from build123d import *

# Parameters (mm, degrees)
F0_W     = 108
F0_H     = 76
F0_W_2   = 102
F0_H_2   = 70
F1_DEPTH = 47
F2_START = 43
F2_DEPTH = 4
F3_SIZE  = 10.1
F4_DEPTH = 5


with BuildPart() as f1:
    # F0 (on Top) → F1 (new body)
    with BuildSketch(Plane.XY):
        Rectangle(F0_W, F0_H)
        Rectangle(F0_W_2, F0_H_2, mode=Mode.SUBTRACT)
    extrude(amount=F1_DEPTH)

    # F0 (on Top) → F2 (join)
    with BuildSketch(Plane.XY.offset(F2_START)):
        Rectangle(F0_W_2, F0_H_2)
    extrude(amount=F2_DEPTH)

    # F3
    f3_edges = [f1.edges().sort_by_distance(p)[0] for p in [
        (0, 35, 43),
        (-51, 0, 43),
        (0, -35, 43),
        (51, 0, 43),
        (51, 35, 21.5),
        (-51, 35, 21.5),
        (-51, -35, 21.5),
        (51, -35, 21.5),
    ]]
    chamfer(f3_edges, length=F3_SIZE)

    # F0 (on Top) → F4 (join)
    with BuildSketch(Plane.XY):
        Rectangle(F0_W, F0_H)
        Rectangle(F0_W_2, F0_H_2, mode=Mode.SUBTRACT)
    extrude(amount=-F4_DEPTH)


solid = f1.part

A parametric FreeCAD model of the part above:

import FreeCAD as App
import Part
import Sketcher


def edges_at(feature, points):
    """Names of the edges that pass closest to the given points."""
    edges = feature.Shape.Edges
    near = lambda p: min(range(len(edges)), key=lambda i: edges[i].distToShape(Part.Vertex(*p))[0])
    return sorted({f"Edge{near(p) + 1}" for p in points})

doc = App.newDocument("Part")
params = doc.addObject("Spreadsheet::Sheet", "Params")
for row, (alias, value) in enumerate([
    ("sketch1_width", "108 mm"),
    ("sketch1_width2", "102 mm"),
    ("sketch1_height", "76 mm"),
    ("sketch1_height2", "70 mm"),
    ("pad1_length", "47 mm"),
    ("sketch2_width", "102 mm"),
    ("sketch2_height", "70 mm"),
    ("pad2_length", "4 mm"),
    ("chamfer_size", "10.1 mm"),
    ("sketch3_width", "108 mm"),
    ("sketch3_width2", "102 mm"),
    ("sketch3_height", "76 mm"),
    ("sketch3_height2", "70 mm"),
    ("pad3_length", "5 mm"),
], start=1):
    params.set(f"A{row}", alias)
    params.set(f"B{row}", "=" + value)
    params.setAlias(f"B{row}", alias)

body = doc.addObject("PartDesign::Body", "Body")

sketch1 = body.newObject("Sketcher::SketchObject", "Sketch")
sketch1.AttachmentSupport = (doc.getObject("XY_Plane"), [""])
sketch1.MapMode = "FlatFace"
sketch1.addGeometry([
    Part.LineSegment(App.Vector(-54, 38, 0), App.Vector(-54, -38, 0)),
    Part.LineSegment(App.Vector(-54, -38, 0), App.Vector(54, -38, 0)),
    Part.LineSegment(App.Vector(54, -38, 0), App.Vector(54, 38, 0)),
    Part.LineSegment(App.Vector(54, 38, 0), App.Vector(-54, 38, 0)),
    Part.LineSegment(App.Vector(51, -35, 0), App.Vector(-51, -35, 0)),
    Part.LineSegment(App.Vector(-51, -35, 0), App.Vector(-51, 35, 0)),
    Part.LineSegment(App.Vector(-51, 35, 0), App.Vector(51, 35, 0)),
    Part.LineSegment(App.Vector(51, 35, 0), App.Vector(51, -35, 0)),
], False)
sketch1.addConstraint([
    Sketcher.Constraint("Coincident", 0, 2, 1, 1),
    Sketcher.Constraint("Coincident", 1, 2, 2, 1),
    Sketcher.Constraint("Coincident", 2, 2, 3, 1),
    Sketcher.Constraint("Coincident", 3, 2, 0, 1),
    Sketcher.Constraint("Coincident", 4, 2, 5, 1),
    Sketcher.Constraint("Coincident", 5, 2, 6, 1),
    Sketcher.Constraint("Coincident", 6, 2, 7, 1),
    Sketcher.Constraint("Coincident", 7, 2, 4, 1),
    Sketcher.Constraint("Vertical", 0),
    Sketcher.Constraint("Horizontal", 1),
    Sketcher.Constraint("Vertical", 2),
    Sketcher.Constraint("Horizontal", 3),
    Sketcher.Constraint("Horizontal", 4),
    Sketcher.Constraint("Vertical", 5),
    Sketcher.Constraint("Horizontal", 6),
    Sketcher.Constraint("Vertical", 7),
    Sketcher.Constraint("Symmetric", 0, 2, 2, 2, -1, 1),
    Sketcher.Constraint("Symmetric", 4, 2, 6, 2, -1, 1),
    Sketcher.Constraint("DistanceX", 1, 1, 1, 2, 108.0),
    Sketcher.Constraint("DistanceX", 4, 2, 4, 1, 102.0),
    Sketcher.Constraint("DistanceY", 0, 2, 0, 1, 76.0),
    Sketcher.Constraint("DistanceY", 5, 1, 5, 2, 70.0),
])
sketch1.setExpression("Constraints[18]", "Params.sketch1_width")
sketch1.setExpression("Constraints[19]", "Params.sketch1_width2")
sketch1.setExpression("Constraints[20]", "Params.sketch1_height")
sketch1.setExpression("Constraints[21]", "Params.sketch1_height2")
pad1 = body.newObject("PartDesign::Pad", "Pad")
pad1.Profile = sketch1
pad1.setExpression("Length", "Params.pad1_length")

sketch2 = body.newObject("Sketcher::SketchObject", "Sketch001")
sketch2.AttachmentSupport = (doc.getObject("XY_Plane"), [""])
sketch2.MapMode = "FlatFace"
sketch2.AttachmentOffset = App.Placement(App.Vector(0, 0, 43), App.Rotation())
sketch2.addGeometry([
    Part.LineSegment(App.Vector(-51, 35, 0), App.Vector(-51, -35, 0)),
    Part.LineSegment(App.Vector(-51, -35, 0), App.Vector(51, -35, 0)),
    Part.LineSegment(App.Vector(51, -35, 0), App.Vector(51, 35, 0)),
    Part.LineSegment(App.Vector(51, 35, 0), App.Vector(-51, 35, 0)),
], False)
sketch2.addConstraint([
    Sketcher.Constraint("Coincident", 0, 2, 1, 1),
    Sketcher.Constraint("Coincident", 1, 2, 2, 1),
    Sketcher.Constraint("Coincident", 2, 2, 3, 1),
    Sketcher.Constraint("Coincident", 3, 2, 0, 1),
    Sketcher.Constraint("Vertical", 0),
    Sketcher.Constraint("Horizontal", 1),
    Sketcher.Constraint("Vertical", 2),
    Sketcher.Constraint("Horizontal", 3),
    Sketcher.Constraint("Symmetric", 0, 2, 2, 2, -1, 1),
    Sketcher.Constraint("DistanceX", 1, 1, 1, 2, 102.0),
    Sketcher.Constraint("DistanceY", 0, 2, 0, 1, 70.0),
])
sketch2.setExpression("Constraints[9]", "Params.sketch2_width")
sketch2.setExpression("Constraints[10]", "Params.sketch2_height")
pad2 = body.newObject("PartDesign::Pad", "Pad001")
pad2.Profile = sketch2
pad2.setExpression("Length", "Params.pad2_length")
doc.recompute()

chamfer = body.newObject("PartDesign::Chamfer", "Chamfer")
chamfer.Base = (pad2, edges_at(pad2, [
    (0, 35, 43),
    (-51, 0, 43),
    (0, -35, 43),
    (51, 0, 43),
    (51, 35, 21.5),
    (-51, 35, 21.5),
    (-51, -35, 21.5),
    (51, -35, 21.5),
]))
chamfer.setExpression("Size", "Params.chamfer_size")

sketch3 = body.newObject("Sketcher::SketchObject", "Sketch002")
sketch3.AttachmentSupport = (doc.getObject("XY_Plane"), [""])
sketch3.MapMode = "FlatFace"
sketch3.addGeometry([
    Part.LineSegment(App.Vector(-54, 38, 0), App.Vector(-54, -38, 0)),
    Part.LineSegment(App.Vector(-54, -38, 0), App.Vector(54, -38, 0)),
    Part.LineSegment(App.Vector(54, -38, 0), App.Vector(54, 38, 0)),
    Part.LineSegment(App.Vector(54, 38, 0), App.Vector(-54, 38, 0)),
    Part.LineSegment(App.Vector(51, -35, 0), App.Vector(-51, -35, 0)),
    Part.LineSegment(App.Vector(-51, -35, 0), App.Vector(-51, 35, 0)),
    Part.LineSegment(App.Vector(-51, 35, 0), App.Vector(51, 35, 0)),
    Part.LineSegment(App.Vector(51, 35, 0), App.Vector(51, -35, 0)),
], False)
sketch3.addConstraint([
    Sketcher.Constraint("Coincident", 0, 2, 1, 1),
    Sketcher.Constraint("Coincident", 1, 2, 2, 1),
    Sketcher.Constraint("Coincident", 2, 2, 3, 1),
    Sketcher.Constraint("Coincident", 3, 2, 0, 1),
    Sketcher.Constraint("Coincident", 4, 2, 5, 1),
    Sketcher.Constraint("Coincident", 5, 2, 6, 1),
    Sketcher.Constraint("Coincident", 6, 2, 7, 1),
    Sketcher.Constraint("Coincident", 7, 2, 4, 1),
    Sketcher.Constraint("Vertical", 0),
    Sketcher.Constraint("Horizontal", 1),
    Sketcher.Constraint("Vertical", 2),
    Sketcher.Constraint("Horizontal", 3),
    Sketcher.Constraint("Horizontal", 4),
    Sketcher.Constraint("Vertical", 5),
    Sketcher.Constraint("Horizontal", 6),
    Sketcher.Constraint("Vertical", 7),
    Sketcher.Constraint("Symmetric", 0, 2, 2, 2, -1, 1),
    Sketcher.Constraint("Symmetric", 4, 2, 6, 2, -1, 1),
    Sketcher.Constraint("DistanceX", 1, 1, 1, 2, 108.0),
    Sketcher.Constraint("DistanceX", 4, 2, 4, 1, 102.0),
    Sketcher.Constraint("DistanceY", 0, 2, 0, 1, 76.0),
    Sketcher.Constraint("DistanceY", 5, 1, 5, 2, 70.0),
])
sketch3.setExpression("Constraints[18]", "Params.sketch3_width")
sketch3.setExpression("Constraints[19]", "Params.sketch3_width2")
sketch3.setExpression("Constraints[20]", "Params.sketch3_height")
sketch3.setExpression("Constraints[21]", "Params.sketch3_height2")
pad3 = body.newObject("PartDesign::Pad", "Pad002")
pad3.Profile = sketch3
pad3.setExpression("Length", "Params.pad3_length")
pad3.Reversed = True

doc.recompute()
